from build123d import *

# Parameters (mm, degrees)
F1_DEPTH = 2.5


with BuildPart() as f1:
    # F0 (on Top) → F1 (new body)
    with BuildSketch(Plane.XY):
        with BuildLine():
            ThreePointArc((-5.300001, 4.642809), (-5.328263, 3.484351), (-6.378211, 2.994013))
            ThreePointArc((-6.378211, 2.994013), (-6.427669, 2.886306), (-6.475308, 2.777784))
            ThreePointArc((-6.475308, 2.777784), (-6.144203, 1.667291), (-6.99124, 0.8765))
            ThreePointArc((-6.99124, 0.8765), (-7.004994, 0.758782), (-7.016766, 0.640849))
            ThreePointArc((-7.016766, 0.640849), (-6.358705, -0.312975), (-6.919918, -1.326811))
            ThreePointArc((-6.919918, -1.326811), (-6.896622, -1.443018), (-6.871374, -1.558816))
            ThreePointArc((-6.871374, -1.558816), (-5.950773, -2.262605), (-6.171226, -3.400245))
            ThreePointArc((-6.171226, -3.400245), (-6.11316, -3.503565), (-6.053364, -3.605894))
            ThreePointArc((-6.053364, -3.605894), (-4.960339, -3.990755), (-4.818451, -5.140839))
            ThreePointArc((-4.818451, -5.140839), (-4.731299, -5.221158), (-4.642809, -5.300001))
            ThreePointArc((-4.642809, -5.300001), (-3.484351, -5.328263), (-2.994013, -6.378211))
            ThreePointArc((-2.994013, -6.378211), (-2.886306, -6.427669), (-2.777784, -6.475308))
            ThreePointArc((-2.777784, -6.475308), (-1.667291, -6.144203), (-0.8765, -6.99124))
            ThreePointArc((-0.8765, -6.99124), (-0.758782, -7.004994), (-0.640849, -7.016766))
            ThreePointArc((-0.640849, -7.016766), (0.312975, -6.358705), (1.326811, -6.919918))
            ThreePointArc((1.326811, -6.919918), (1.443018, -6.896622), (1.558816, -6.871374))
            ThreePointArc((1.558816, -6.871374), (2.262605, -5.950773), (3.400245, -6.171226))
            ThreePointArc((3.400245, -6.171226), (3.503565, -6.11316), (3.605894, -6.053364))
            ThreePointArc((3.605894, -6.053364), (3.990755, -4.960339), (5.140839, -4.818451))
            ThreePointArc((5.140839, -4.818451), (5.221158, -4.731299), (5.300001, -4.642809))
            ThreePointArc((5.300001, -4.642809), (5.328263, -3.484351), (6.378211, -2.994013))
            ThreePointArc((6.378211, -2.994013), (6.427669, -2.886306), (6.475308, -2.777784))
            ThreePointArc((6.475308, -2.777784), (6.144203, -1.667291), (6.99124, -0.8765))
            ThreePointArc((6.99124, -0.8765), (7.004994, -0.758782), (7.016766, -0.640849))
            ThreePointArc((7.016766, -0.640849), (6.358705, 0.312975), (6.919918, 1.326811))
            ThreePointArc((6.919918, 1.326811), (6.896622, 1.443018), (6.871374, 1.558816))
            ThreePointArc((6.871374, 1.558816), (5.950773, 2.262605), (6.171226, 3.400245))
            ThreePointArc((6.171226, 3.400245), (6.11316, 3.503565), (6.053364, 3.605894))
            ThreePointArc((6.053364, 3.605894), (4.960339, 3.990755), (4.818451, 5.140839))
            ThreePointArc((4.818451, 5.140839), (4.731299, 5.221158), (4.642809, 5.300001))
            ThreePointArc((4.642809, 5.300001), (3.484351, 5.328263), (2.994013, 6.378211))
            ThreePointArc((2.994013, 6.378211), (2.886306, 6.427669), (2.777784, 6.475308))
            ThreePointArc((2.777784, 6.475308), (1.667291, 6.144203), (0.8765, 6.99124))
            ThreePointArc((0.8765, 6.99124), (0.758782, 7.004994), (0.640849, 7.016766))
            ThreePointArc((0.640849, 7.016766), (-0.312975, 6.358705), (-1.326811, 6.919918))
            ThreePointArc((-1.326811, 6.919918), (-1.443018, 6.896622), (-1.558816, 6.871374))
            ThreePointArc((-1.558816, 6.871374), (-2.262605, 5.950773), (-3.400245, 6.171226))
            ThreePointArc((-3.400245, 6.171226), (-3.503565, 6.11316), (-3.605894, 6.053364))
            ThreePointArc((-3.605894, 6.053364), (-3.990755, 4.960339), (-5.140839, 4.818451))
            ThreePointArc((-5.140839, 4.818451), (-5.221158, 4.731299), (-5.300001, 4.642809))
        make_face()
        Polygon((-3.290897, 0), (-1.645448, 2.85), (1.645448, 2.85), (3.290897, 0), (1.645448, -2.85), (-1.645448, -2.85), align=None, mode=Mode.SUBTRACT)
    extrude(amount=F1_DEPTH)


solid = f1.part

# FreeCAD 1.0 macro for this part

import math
import FreeCAD as App
import Part
import Sketcher
from FreeCAD import Vector
Q = App.Units.Quantity

doc = App.newDocument("Part")
body = doc.addObject("PartDesign::Body", "Body")

# Sketch on XY plane
sketch1 = body.newObject("Sketcher::SketchObject", "Sketch")
sketch1.AttachmentSupport = (doc.getObject("XY_Plane"), [""])
sketch1.MapMode = "FlatFace"
sketch1.addGeometry(Part.ArcOfCircle(Part.Circle(Vector(-6.248891, 4.086385, 0), Vector(0, 0, 1), 1.1), math.radians(-96.751541), math.radians(30.387162)), False)
sketch1.addGeometry(Part.ArcOfCircle(Part.Circle(Vector(0.001103, -0.000514, 0), Vector(0, 0, 1), 7.047187), math.radians(154.85407), math.radians(156.78128)), False)
sketch1.addGeometry(Part.ArcOfCircle(Part.Circle(Vector(-7.205811, 1.955369, 0), Vector(0, 0, 1), 1.1), math.radians(-78.75153), math.radians(48.387198)), False)
sketch1.addGeometry(Part.ArcOfCircle(Part.Circle(Vector(-0.00015, 0.000009, 0), Vector(0, 0, 1), 7.045819), math.radians(172.853963), math.radians(174.78155)), False)
sketch1.addGeometry(Part.ArcOfCircle(Part.Circle(Vector(-7.457374, -0.367051, 0), Vector(0, 0, 1), 1.099999), math.radians(-60.751599), math.radians(66.387234)), False)
sketch1.addGeometry(Part.ArcOfCircle(Part.Circle(Vector(-0.002798, -0.000575, 0), Vector(0, 0, 1), 7.043114), math.radians(-169.146267), math.radians(-167.217942)), False)
sketch1.addGeometry(Part.ArcOfCircle(Part.Circle(Vector(-6.97896, -2.653542, 0), Vector(0, 0, 1), 1.1), math.radians(-42.751605), math.radians(84.387207)), False)
sketch1.addGeometry(Part.ArcOfCircle(Part.Circle(Vector(-0.000473, -0.000249, 0), Vector(0, 0, 1), 7.045436), math.radians(-151.145868), math.radians(-149.218176)), False)
sketch1.addGeometry(Part.ArcOfCircle(Part.Circle(Vector(-5.817396, -4.680286, 0), Vector(0, 0, 1), 1.1), math.radians(-24.75156), math.radians(102.387169)), False)
sketch1.addGeometry(Part.ArcOfCircle(Part.Circle(Vector(0.003271, 0.00364, 0), Vector(0, 0, 1), 7.050863), math.radians(-133.145115), math.radians(-131.218913)), False)
sketch1.addGeometry(Part.ArcOfCircle(Part.Circle(Vector(-4.086385, -6.248891, 0), Vector(0, 0, 1), 1.1), math.radians(-6.751541), math.radians(120.387162)), False)
sketch1.addGeometry(Part.ArcOfCircle(Part.Circle(Vector(0.000514, 0.001103, 0), Vector(0, 0, 1), 7.047187), math.radians(-115.14593), math.radians(-113.21872)), False)
sketch1.addGeometry(Part.ArcOfCircle(Part.Circle(Vector(-1.955369, -7.205811, 0), Vector(0, 0, 1), 1.1), math.radians(11.24847), math.radians(138.387198)), False)
sketch1.addGeometry(Part.ArcOfCircle(Part.Circle(Vector(-0.000009, -0.00015, 0), Vector(0, 0, 1), 7.045819), math.radians(-97.146037), math.radians(-95.21845)), False)
sketch1.addGeometry(Part.ArcOfCircle(Part.Circle(Vector(0.367051, -7.457374, 0), Vector(0, 0, 1), 1.099999), math.radians(29.248401), math.radians(156.387234)), False)
sketch1.addGeometry(Part.ArcOfCircle(Part.Circle(Vector(0.000575, -0.002798, 0), Vector(0, 0, 1), 7.043114), math.radians(-79.146267), math.radians(-77.217942)), False)
sketch1.addGeometry(Part.ArcOfCircle(Part.Circle(Vector(2.653542, -6.97896, 0), Vector(0, 0, 1), 1.1), math.radians(47.248395), math.radians(174.387207)), False)
sketch1.addGeometry(Part.ArcOfCircle(Part.Circle(Vector(0.000249, -0.000473, 0), Vector(0, 0, 1), 7.045436), math.radians(-61.145868), math.radians(-59.218176)), False)
sketch1.addGeometry(Part.ArcOfCircle(Part.Circle(Vector(4.680286, -5.817396, 0), Vector(0, 0, 1), 1.1), math.radians(65.24844), math.radians(192.387169)), False)
sketch1.addGeometry(Part.ArcOfCircle(Part.Circle(Vector(-0.00364, 0.003271, 0), Vector(0, 0, 1), 7.050863), math.radians(-43.145115), math.radians(-41.218913)), False)
sketch1.addGeometry(Part.ArcOfCircle(Part.Circle(Vector(6.248891, -4.086385, 0), Vector(0, 0, 1), 1.1), math.radians(83.248459), math.radians(210.387162)), False)
sketch1.addGeometry(Part.ArcOfCircle(Part.Circle(Vector(-0.001103, 0.000514, 0), Vector(0, 0, 1), 7.047187), math.radians(-25.14593), math.radians(-23.21872)), False)
sketch1.addGeometry(Part.ArcOfCircle(Part.Circle(Vector(7.205811, -1.955369, 0), Vector(0, 0, 1), 1.1), math.radians(101.24847), math.radians(228.387198)), False)
sketch1.addGeometry(Part.ArcOfCircle(Part.Circle(Vector(0.00015, -0.000009, 0), Vector(0, 0, 1), 7.045819), math.radians(-7.146037), math.radians(-5.21845)), False)
sketch1.addGeometry(Part.ArcOfCircle(Part.Circle(Vector(7.457374, 0.367051, 0), Vector(0, 0, 1), 1.099999), math.radians(119.248401), math.radians(246.387234)), False)
sketch1.addGeometry(Part.ArcOfCircle(Part.Circle(Vector(0.002798, 0.000575, 0), Vector(0, 0, 1), 7.043114), math.radians(10.853733), math.radians(12.782058)), False)
sketch1.addGeometry(Part.ArcOfCircle(Part.Circle(Vector(6.97896, 2.653542, 0), Vector(0, 0, 1), 1.1), math.radians(137.248395), math.radians(264.387207)), False)
sketch1.addGeometry(Part.ArcOfCircle(Part.Circle(Vector(0.000473, 0.000249, 0), Vector(0, 0, 1), 7.045436), math.radians(28.854132), math.radians(30.781824)), False)
sketch1.addGeometry(Part.ArcOfCircle(Part.Circle(Vector(5.817396, 4.680286, 0), Vector(0, 0, 1), 1.1), math.radians(155.24844), math.radians(282.387169)), False)
sketch1.addGeometry(Part.ArcOfCircle(Part.Circle(Vector(-0.003271, -0.00364, 0), Vector(0, 0, 1), 7.050863), math.radians(46.854885), math.radians(48.781087)), False)
sketch1.addGeometry(Part.ArcOfCircle(Part.Circle(Vector(4.086385, 6.248891, 0), Vector(0, 0, 1), 1.1), math.radians(173.248459), math.radians(300.387162)), False)
sketch1.addGeometry(Part.ArcOfCircle(Part.Circle(Vector(-0.000514, -0.001103, 0), Vector(0, 0, 1), 7.047187), math.radians(64.85407), math.radians(66.78128)), False)
sketch1.addGeometry(Part.ArcOfCircle(Part.Circle(Vector(1.955369, 7.205811, 0), Vector(0, 0, 1), 1.1), math.radians(-168.75153), math.radians(-41.612802)), False)
sketch1.addGeometry(Part.ArcOfCircle(Part.Circle(Vector(0.000009, 0.00015, 0), Vector(0, 0, 1), 7.045819), math.radians(82.853963), math.radians(84.78155)), False)
sketch1.addGeometry(Part.ArcOfCircle(Part.Circle(Vector(-0.367051, 7.457374, 0), Vector(0, 0, 1), 1.099999), math.radians(-150.751599), math.radians(-23.612766)), False)
sketch1.addGeometry(Part.ArcOfCircle(Part.Circle(Vector(-0.000575, 0.002798, 0), Vector(0, 0, 1), 7.043114), math.radians(100.853733), math.radians(102.782058)), False)
sketch1.addGeometry(Part.ArcOfCircle(Part.Circle(Vector(-2.653542, 6.97896, 0), Vector(0, 0, 1), 1.1), math.radians(-132.751605), math.radians(-5.612793)), False)
sketch1.addGeometry(Part.ArcOfCircle(Part.Circle(Vector(-0.000249, 0.000473, 0), Vector(0, 0, 1), 7.045436), math.radians(118.854132), math.radians(120.781824)), False)
sketch1.addGeometry(Part.ArcOfCircle(Part.Circle(Vector(-4.680286, 5.817396, 0), Vector(0, 0, 1), 1.1), math.radians(-114.75156), math.radians(12.387169)), False)
sketch1.addGeometry(Part.ArcOfCircle(Part.Circle(Vector(0.00364, -0.003271, 0), Vector(0, 0, 1), 7.050863), math.radians(136.854885), math.radians(138.781087)), False)
sketch1.addGeometry(Part.LineSegment(Vector(-1.645448, -2.85, 0), Vector(-3.290897, 0, 0)), False)
sketch1.addGeometry(Part.LineSegment(Vector(-3.290897, 0, 0), Vector(-1.645448, 2.85, 0)), False)
sketch1.addGeometry(Part.LineSegment(Vector(-1.645448, 2.85, 0), Vector(1.645448, 2.85, 0)), False)
sketch1.addGeometry(Part.LineSegment(Vector(1.645448, 2.85, 0), Vector(3.290897, 0, 0)), False)
sketch1.addGeometry(Part.LineSegment(Vector(3.290897, 0, 0), Vector(1.645448, -2.85, 0)), False)
sketch1.addGeometry(Part.LineSegment(Vector(1.645448, -2.85, 0), Vector(-1.645448, -2.85, 0)), False)
sketch1.addConstraint(Sketcher.Constraint("Coincident", 0, 1, 1, 1))
sketch1.addConstraint(Sketcher.Constraint("Coincident", 1, 2, 2, 2))
sketch1.addConstraint(Sketcher.Constraint("Coincident", 2, 1, 3, 1))
sketch1.addConstraint(Sketcher.Constraint("Coincident", 3, 2, 4, 2))
sketch1.addConstraint(Sketcher.Constraint("Coincident", 4, 1, 5, 1))
sketch1.addConstraint(Sketcher.Constraint("Coincident", 5, 2, 6, 2))
sketch1.addConstraint(Sketcher.Constraint("Coincident", 6, 1, 7, 1))
sketch1.addConstraint(Sketcher.Constraint("Coincident", 7, 2, 8, 2))
sketch1.addConstraint(Sketcher.Constraint("Coincident", 8, 1, 9, 1))
sketch1.addConstraint(Sketcher.Constraint("Coincident", 9, 2, 10, 2))
sketch1.addConstraint(Sketcher.Constraint("Coincident", 10, 1, 11, 1))
sketch1.addConstraint(Sketcher.Constraint("Coincident", 11, 2, 12, 2))
sketch1.addConstraint(Sketcher.Constraint("Coincident", 12, 1, 13, 1))
sketch1.addConstraint(Sketcher.Constraint("Coincident", 13, 2, 14, 2))
sketch1.addConstraint(Sketcher.Constraint("Coincident", 14, 1, 15, 1))
sketch1.addConstraint(Sketcher.Constraint("Coincident", 15, 2, 16, 2))
sketch1.addConstraint(Sketcher.Constraint("Coincident", 16, 1, 17, 1))
sketch1.addConstraint(Sketcher.Constraint("Coincident", 17, 2, 18, 2))
sketch1.addConstraint(Sketcher.Constraint("Coincident", 18, 1, 19, 1))
sketch1.addConstraint(Sketcher.Constraint("Coincident", 19, 2, 20, 2))
sketch1.addConstraint(Sketcher.Constraint("Coincident", 20, 1, 21, 1))
sketch1.addConstraint(Sketcher.Constraint("Coincident", 21, 2, 22, 2))
sketch1.addConstraint(Sketcher.Constraint("Coincident", 22, 1, 23, 1))
sketch1.addConstraint(Sketcher.Constraint("Coincident", 23, 2, 24, 2))
sketch1.addConstraint(Sketcher.Constraint("Coincident", 24, 1, 25, 1))
sketch1.addConstraint(Sketcher.Constraint("Coincident", 25, 2, 26, 2))
sketch1.addConstraint(Sketcher.Constraint("Coincident", 26, 1, 27, 1))
sketch1.addConstraint(Sketcher.Constraint("Coincident", 27, 2, 28, 2))
sketch1.addConstraint(Sketcher.Constraint("Coincident", 28, 1, 29, 1))
sketch1.addConstraint(Sketcher.Constraint("Coincident", 29, 2, 30, 2))
sketch1.addConstraint(Sketcher.Constraint("Coincident", 30, 1, 31, 1))
sketch1.addConstraint(Sketcher.Constraint("Coincident", 31, 2, 32, 2))
sketch1.addConstraint(Sketcher.Constraint("Coincident", 32, 1, 33, 1))
sketch1.addConstraint(Sketcher.Constraint("Coincident", 33, 2, 34, 2))
sketch1.addConstraint(Sketcher.Constraint("Coincident", 34, 1, 35, 1))
sketch1.addConstraint(Sketcher.Constraint("Coincident", 35, 2, 36, 2))
sketch1.addConstraint(Sketcher.Constraint("Coincident", 36, 1, 37, 1))
sketch1.addConstraint(Sketcher.Constraint("Coincident", 37, 2, 38, 2))
sketch1.addConstraint(Sketcher.Constraint("Coincident", 38, 1, 39, 1))
sketch1.addConstraint(Sketcher.Constraint("Coincident", 39, 2, 0, 2))
sketch1.addConstraint(Sketcher.Constraint("Coincident", 40, 2, 41, 1))
sketch1.addConstraint(Sketcher.Constraint("Coincident", 41, 2, 42, 1))
sketch1.addConstraint(Sketcher.Constraint("Coincident", 42, 2, 43, 1))
sketch1.addConstraint(Sketcher.Constraint("Coincident", 43, 2, 44, 1))
sketch1.addConstraint(Sketcher.Constraint("Coincident", 44, 2, 45, 1))
sketch1.addConstraint(Sketcher.Constraint("Coincident", 45, 2, 40, 1))
sketch1.addConstraint(Sketcher.Constraint("Horizontal", 42))
sketch1.addConstraint(Sketcher.Constraint("Horizontal", 45))
sketch1.addConstraint(Sketcher.Constraint("Equal", 0, 2))
sketch1.addConstraint(Sketcher.Constraint("Equal", 2, 4))
sketch1.addConstraint(Sketcher.Constraint("Equal", 4, 6))
sketch1.addConstraint(Sketcher.Constraint("Equal", 6, 8))
sketch1.addConstraint(Sketcher.Constraint("Equal", 8, 10))
sketch1.addConstraint(Sketcher.Constraint("Equal", 1, 11))
sketch1.addConstraint(Sketcher.Constraint("Equal", 10, 12))
sketch1.addConstraint(Sketcher.Constraint("Equal", 3, 13))
sketch1.addConstraint(Sketcher.Constraint("Equal", 12, 14))
sketch1.addConstraint(Sketcher.Constraint("Equal", 5, 15))
sketch1.addConstraint(Sketcher.Constraint("Equal", 14, 16))
sketch1.addConstraint(Sketcher.Constraint("Equal", 7, 17))
sketch1.addConstraint(Sketcher.Constraint("Equal", 16, 18))
sketch1.addConstraint(Sketcher.Constraint("Equal", 9, 19))
sketch1.addConstraint(Sketcher.Constraint("Equal", 18, 20))
sketch1.addConstraint(Sketcher.Constraint("Equal", 11, 21))
sketch1.addConstraint(Sketcher.Constraint("Equal", 20, 22))
sketch1.addConstraint(Sketcher.Constraint("Equal", 13, 23))
sketch1.addConstraint(Sketcher.Constraint("Equal", 22, 24))
sketch1.addConstraint(Sketcher.Constraint("Equal", 15, 25))
sketch1.addConstraint(Sketcher.Constraint("Equal", 24, 26))
sketch1.addConstraint(Sketcher.Constraint("Equal", 17, 27))
sketch1.addConstraint(Sketcher.Constraint("Equal", 26, 28))
sketch1.addConstraint(Sketcher.Constraint("Equal", 19, 29))
sketch1.addConstraint(Sketcher.Constraint("Equal", 28, 30))
sketch1.addConstraint(Sketcher.Constraint("Equal", 21, 31))
sketch1.addConstraint(Sketcher.Constraint("Equal", 30, 32))
sketch1.addConstraint(Sketcher.Constraint("Equal", 23, 33))
sketch1.addConstraint(Sketcher.Constraint("Equal", 32, 34))
sketch1.addConstraint(Sketcher.Constraint("Equal", 25, 35))
sketch1.addConstraint(Sketcher.Constraint("Equal", 34, 36))
sketch1.addConstraint(Sketcher.Constraint("Equal", 27, 37))
sketch1.addConstraint(Sketcher.Constraint("Equal", 36, 38))
sketch1.addConstraint(Sketcher.Constraint("Equal", 29, 39))
sketch1.addConstraint(Sketcher.Constraint("Symmetric", 0, 3, 20, 3, -1, 1))
sketch1.addConstraint(Sketcher.Constraint("Symmetric", 1, 3, 21, 3, -1, 1))
sketch1.addConstraint(Sketcher.Constraint("Symmetric", 2, 3, 22, 3, -1, 1))
sketch1.addConstraint(Sketcher.Constraint("Symmetric", 3, 3, 23, 3, -1, 1))
sketch1.addConstraint(Sketcher.Constraint("Symmetric", 4, 3, 24, 3, -1, 1))
sketch1.addConstraint(Sketcher.Constraint("Symmetric", 5, 3, 25, 3, -1, 1))
sketch1.addConstraint(Sketcher.Constraint("Symmetric", 6, 3, 26, 3, -1, 1))
sketch1.addConstraint(Sketcher.Constraint("Symmetric", 7, 3, 27, 3, -1, 1))
sketch1.addConstraint(Sketcher.Constraint("Symmetric", 8, 3, 28, 3, -1, 1))
sketch1.addConstraint(Sketcher.Constraint("Symmetric", 9, 3, 29, 3, -1, 1))
sketch1.addConstraint(Sketcher.Constraint("Symmetric", 10, 3, 30, 3, -1, 1))
sketch1.addConstraint(Sketcher.Constraint("Symmetric", 11, 3, 31, 3, -1, 1))
sketch1.addConstraint(Sketcher.Constraint("Symmetric", 12, 3, 32, 3, -1, 1))
sketch1.addConstraint(Sketcher.Constraint("Symmetric", 13, 3, 33, 3, -1, 1))
sketch1.addConstraint(Sketcher.Constraint("Symmetric", 14, 3, 34, 3, -1, 1))
sketch1.addConstraint(Sketcher.Constraint("Symmetric", 15, 3, 35, 3, -1, 1))
sketch1.addConstraint(Sketcher.Constraint("Symmetric", 16, 3, 36, 3, -1, 1))
sketch1.addConstraint(Sketcher.Constraint("Symmetric", 17, 3, 37, 3, -1, 1))
sketch1.addConstraint(Sketcher.Constraint("Symmetric", 18, 3, 38, 3, -1, 1))
sketch1.addConstraint(Sketcher.Constraint("Symmetric", 19, 3, 39, 3, -1, 1))
sketch1.addConstraint(Sketcher.Constraint("Symmetric", 40, 2, 43, 2, -1, 1))
sketch1.addConstraint(Sketcher.Constraint("Symmetric", 41, 2, 44, 2, -1, 1))
sketch1.addConstraint(Sketcher.Constraint("PointOnObject", 40, 2, -1))
sketch1.addConstraint(Sketcher.Constraint("Parallel", 40, 43))
sketch1.addConstraint(Sketcher.Constraint("Vertical", 42, 2, 44, 2))
sketch1.addConstraint(Sketcher.Constraint("Radius", 0, 1.1))
sketch1.addConstraint(Sketcher.Constraint("Angle", 40, Q("120.000011 deg")))
sketch1.addConstraint(Sketcher.Constraint("DistanceY", 9, 2, -1, 1, 5.300001))
sketch1.addConstraint(Sketcher.Constraint("DistanceX", -1, 1, 19, 2, 5.300001))
sketch1.addConstraint(Sketcher.Constraint("DistanceY", -1, 1, 41, 2, 2.85))
sketch1.addConstraint(Sketcher.Constraint("Radius", 3, 7.045819))
sketch1.addConstraint(Sketcher.Constraint("Radius", 1, 7.047187))
sketch1.addConstraint(Sketcher.Constraint("Radius", 5, 7.043114))
sketch1.addConstraint(Sketcher.Constraint("Radius", 7, 7.045436))
sketch1.addConstraint(Sketcher.Constraint("Radius", 9, 7.050863))
sketch1.addConstraint(Sketcher.Constraint("DistanceY", -1, 1, 2, 1, 0.8765))
sketch1.addConstraint(Sketcher.Constraint("DistanceX", 12, 1, -1, 1, 0.8765))
sketch1.addConstraint(Sketcher.Constraint("DistanceX", 42, 1, 42, 2, 3.290896))
sketch1.addConstraint(Sketcher.Constraint("DistanceX", 0, 3, -1, 1, 6.248891))
sketch1.addConstraint(Sketcher.Constraint("DistanceX", 2, 3, -1, 1, 7.205811))
sketch1.addConstraint(Sketcher.Constraint("DistanceY", -1, 1, 2, 3, 1.955369))
sketch1.addConstraint(Sketcher.Constraint("DistanceX", 3, 3, -1, 1, 0.00015))
sketch1.addConstraint(Sketcher.Constraint("DistanceY", 4, 3, -1, 1, 0.367051))
sketch1.addConstraint(Sketcher.Constraint("DistanceX", 6, 3, -1, 1, 6.97896))
sketch1.addConstraint(Sketcher.Constraint("DistanceY", 6, 3, -1, 1, 2.653542))
sketch1.addConstraint(Sketcher.Constraint("DistanceY", 7, 3, -1, 1, 0.000249))
sketch1.addConstraint(Sketcher.Constraint("DistanceX", -1, 1, 9, 3, 0.003271))
sketch1.addConstraint(Sketcher.Constraint("DistanceY", -1, 1, 9, 3, 0.00364))
sketch1.addConstraint(Sketcher.Constraint("DistanceY", 10, 3, -1, 1, 6.248891))
sketch1.addConstraint(Sketcher.Constraint("DistanceX", 12, 3, -1, 1, 1.955369))
sketch1.addConstraint(Sketcher.Constraint("DistanceY", 12, 3, -1, 1, 7.205811))
sketch1.addConstraint(Sketcher.Constraint("DistanceY", 13, 3, -1, 1, 0.00015))
sketch1.addConstraint(Sketcher.Constraint("DistanceX", -1, 1, 14, 3, 0.367051))
sketch1.addConstraint(Sketcher.Constraint("DistanceX", -1, 1, 16, 3, 2.653542))
sketch1.addConstraint(Sketcher.Constraint("DistanceY", 16, 3, -1, 1, 6.97896))
sketch1.addConstraint(Sketcher.Constraint("DistanceX", -1, 1, 17, 3, 0.000249))
sketch1.addConstraint(Sketcher.Constraint("DistanceX", 19, 3, -1, 1, 0.00364))
sketch1.addConstraint(Sketcher.Constraint("DistanceY", -1, 1, 19, 3, 0.003271))
sketch1.addConstraint(Sketcher.Constraint("DistanceX", 0, 1, -1, 1, 6.378211))
sketch1.addConstraint(Sketcher.Constraint("DistanceX", 1, 2, -1, 1, 6.475308))
sketch1.addConstraint(Sketcher.Constraint("DistanceY", -1, 1, 3, 2, 0.640849))
sketch1.addConstraint(Sketcher.Constraint("DistanceX", 4, 1, -1, 1, 6.919918))
sketch1.addConstraint(Sketcher.Constraint("DistanceX", 8, 1, -1, 1, 4.818451))
sketch1.addConstraint(Sketcher.Constraint("DistanceY", 10, 1, -1, 1, 6.378211))
sketch1.addConstraint(Sketcher.Constraint("DistanceY", 11, 2, -1, 1, 6.475308))
sketch1.addConstraint(Sketcher.Constraint("DistanceX", 13, 2, -1, 1, 0.640849))
sketch1.addConstraint(Sketcher.Constraint("DistanceX", -1, 1, 14, 1, 1.326811))
sketch1.addConstraint(Sketcher.Constraint("DistanceX", -1, 1, 18, 1, 5.140839))
sketch1.addConstraint(Sketcher.Constraint("DistanceX", 5, 3, -1, 1, 0.002798))
sketch1.addConstraint(Sketcher.Constraint("DistanceX", 7, 3, -1, 1, 0.000473))
sketch1.addConstraint(Sketcher.Constraint("DistanceX", 8, 3, -1, 1, 5.817396))
sketch1.addConstraint(Sketcher.Constraint("DistanceX", -1, 1, 15, 3, 0.000575))
sketch1.addConstraint(Sketcher.Constraint("DistanceY", 17, 3, -1, 1, 0.000473))
sketch1.addConstraint(Sketcher.Constraint("DistanceX", -1, 1, 18, 3, 4.680286))
pad1 = body.newObject("PartDesign::Pad", "Pad")
pad1.Profile = sketch1
pad1.Length = 2.5

doc.recompute()
